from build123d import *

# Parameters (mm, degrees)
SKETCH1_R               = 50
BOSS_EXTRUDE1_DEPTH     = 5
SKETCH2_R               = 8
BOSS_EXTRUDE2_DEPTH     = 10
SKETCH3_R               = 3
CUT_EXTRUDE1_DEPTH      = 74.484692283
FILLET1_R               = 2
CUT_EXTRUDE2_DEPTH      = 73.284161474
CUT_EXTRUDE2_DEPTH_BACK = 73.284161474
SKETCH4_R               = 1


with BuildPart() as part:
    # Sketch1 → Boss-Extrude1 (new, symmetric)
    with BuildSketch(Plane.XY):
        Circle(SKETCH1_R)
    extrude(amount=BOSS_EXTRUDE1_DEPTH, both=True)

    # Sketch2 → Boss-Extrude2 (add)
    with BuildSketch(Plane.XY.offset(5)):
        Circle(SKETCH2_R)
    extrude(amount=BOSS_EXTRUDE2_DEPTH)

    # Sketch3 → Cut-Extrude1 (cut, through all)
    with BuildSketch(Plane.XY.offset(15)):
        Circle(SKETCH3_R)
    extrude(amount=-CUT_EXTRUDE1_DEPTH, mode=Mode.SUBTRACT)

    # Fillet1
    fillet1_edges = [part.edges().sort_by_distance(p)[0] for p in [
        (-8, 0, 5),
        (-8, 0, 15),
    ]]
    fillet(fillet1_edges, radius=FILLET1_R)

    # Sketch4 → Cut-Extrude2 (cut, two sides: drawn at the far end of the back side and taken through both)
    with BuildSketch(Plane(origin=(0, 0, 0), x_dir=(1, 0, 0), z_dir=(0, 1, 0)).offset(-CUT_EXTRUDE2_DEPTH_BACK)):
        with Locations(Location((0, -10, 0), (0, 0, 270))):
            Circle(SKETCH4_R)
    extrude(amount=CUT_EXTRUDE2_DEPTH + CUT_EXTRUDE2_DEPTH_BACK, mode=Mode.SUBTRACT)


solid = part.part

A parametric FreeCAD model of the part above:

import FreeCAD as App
import Part
import Sketcher

V = App.Vector
Q = App.Units.Quantity


def edges_at(feature, points):
    """Names of the edges that pass closest to the given points."""
    edges = feature.Shape.Edges
    near = lambda p: min(range(len(edges)), key=lambda i: edges[i].distToShape(Part.Vertex(*p))[0])
    return sorted({f"Edge{near(p) + 1}" for p in points})

doc = App.newDocument("Part")
body = doc.addObject("PartDesign::Body", "Body")

sketch1 = doc.addObject("Sketcher::SketchObject", "Sketch")
body.addObject(sketch1)
sketch1.AttachmentSupport = (doc.XY_Plane, [""])
sketch1.MapMode = "FlatFace"
sketch1.addGeometry(Part.Circle(V(0, 0, 0), V(0, 0, 1), 50), False)
sketch1.addConstraint([
    Sketcher.Constraint("Coincident", 0, 3, -1, 1),
    Sketcher.Constraint("Diameter", 0, Q("100 mm")),
])
pad1 = doc.addObject("PartDesign::Pad", "Pad")
body.addObject(pad1)
pad1.Profile = sketch1
pad1.Length = 10
pad1.Midplane = True

sketch2 = doc.addObject("Sketcher::SketchObject", "Sketch001")
body.addObject(sketch2)
sketch2.AttachmentSupport = (doc.XY_Plane, [""])
sketch2.MapMode = "FlatFace"
sketch2.AttachmentOffset = App.Placement(V(0, 0, 5), App.Rotation())
sketch2.addGeometry(Part.Circle(V(0, 0, 0), V(0, 0, 1), 8), False)
sketch2.addConstraint([
    Sketcher.Constraint("Coincident", 0, 3, -1, 1),
    Sketcher.Constraint("Diameter", 0, Q("16 mm")),
])
pad2 = doc.addObject("PartDesign::Pad", "Pad001")
body.addObject(pad2)
pad2.Profile = sketch2
pad2.Length = 10

sketch3 = doc.addObject("Sketcher::SketchObject", "Sketch002")
body.addObject(sketch3)
sketch3.AttachmentSupport = (doc.XY_Plane, [""])
sketch3.MapMode = "FlatFace"
sketch3.AttachmentOffset = App.Placement(V(0, 0, 15), App.Rotation())
sketch3.addGeometry(Part.Circle(V(0, 0, 0), V(0, 0, 1), 3), False)
sketch3.addConstraint([
    Sketcher.Constraint("Coincident", 0, 3, -1, 1),
    Sketcher.Constraint("Diameter", 0, Q("6 mm")),
])
pocket1 = doc.addObject("PartDesign::Pocket", "Pocket")
body.addObject(pocket1)
pocket1.Profile = sketch3
pocket1.Type = "ThroughAll"
doc.recompute()

fillet = doc.addObject("PartDesign::Fillet", "Fillet")
body.addObject(fillet)
fillet.Base = (pocket1, edges_at(pocket1, [(-8, 0, 5), (-8, 0, 15)]))
fillet.Radius = 2

sketch4 = doc.addObject("Sketcher::SketchObject", "Sketch003")
body.addObject(sketch4)
sketch4.AttachmentSupport = (doc.XZ_Plane, [""])
sketch4.MapMode = "FlatFace"
sketch4.addGeometry(Part.Circle(V(0, 10, 0), V(0, 0, 1), 1), False)
sketch4.addConstraint([
    Sketcher.Constraint("PointOnObject", 0, 3, -2),
    Sketcher.Constraint("Diameter", 0, Q("2 mm")),
    Sketcher.Constraint("DistanceY", -1, 1, 0, 3, Q("10 mm")),
])
pocket2 = doc.addObject("PartDesign::Pocket", "Pocket001")
body.addObject(pocket2)
pocket2.Profile = sketch4
pocket2.Type = "ThroughAll"
pocket2.Midplane = True

doc.recompute()
